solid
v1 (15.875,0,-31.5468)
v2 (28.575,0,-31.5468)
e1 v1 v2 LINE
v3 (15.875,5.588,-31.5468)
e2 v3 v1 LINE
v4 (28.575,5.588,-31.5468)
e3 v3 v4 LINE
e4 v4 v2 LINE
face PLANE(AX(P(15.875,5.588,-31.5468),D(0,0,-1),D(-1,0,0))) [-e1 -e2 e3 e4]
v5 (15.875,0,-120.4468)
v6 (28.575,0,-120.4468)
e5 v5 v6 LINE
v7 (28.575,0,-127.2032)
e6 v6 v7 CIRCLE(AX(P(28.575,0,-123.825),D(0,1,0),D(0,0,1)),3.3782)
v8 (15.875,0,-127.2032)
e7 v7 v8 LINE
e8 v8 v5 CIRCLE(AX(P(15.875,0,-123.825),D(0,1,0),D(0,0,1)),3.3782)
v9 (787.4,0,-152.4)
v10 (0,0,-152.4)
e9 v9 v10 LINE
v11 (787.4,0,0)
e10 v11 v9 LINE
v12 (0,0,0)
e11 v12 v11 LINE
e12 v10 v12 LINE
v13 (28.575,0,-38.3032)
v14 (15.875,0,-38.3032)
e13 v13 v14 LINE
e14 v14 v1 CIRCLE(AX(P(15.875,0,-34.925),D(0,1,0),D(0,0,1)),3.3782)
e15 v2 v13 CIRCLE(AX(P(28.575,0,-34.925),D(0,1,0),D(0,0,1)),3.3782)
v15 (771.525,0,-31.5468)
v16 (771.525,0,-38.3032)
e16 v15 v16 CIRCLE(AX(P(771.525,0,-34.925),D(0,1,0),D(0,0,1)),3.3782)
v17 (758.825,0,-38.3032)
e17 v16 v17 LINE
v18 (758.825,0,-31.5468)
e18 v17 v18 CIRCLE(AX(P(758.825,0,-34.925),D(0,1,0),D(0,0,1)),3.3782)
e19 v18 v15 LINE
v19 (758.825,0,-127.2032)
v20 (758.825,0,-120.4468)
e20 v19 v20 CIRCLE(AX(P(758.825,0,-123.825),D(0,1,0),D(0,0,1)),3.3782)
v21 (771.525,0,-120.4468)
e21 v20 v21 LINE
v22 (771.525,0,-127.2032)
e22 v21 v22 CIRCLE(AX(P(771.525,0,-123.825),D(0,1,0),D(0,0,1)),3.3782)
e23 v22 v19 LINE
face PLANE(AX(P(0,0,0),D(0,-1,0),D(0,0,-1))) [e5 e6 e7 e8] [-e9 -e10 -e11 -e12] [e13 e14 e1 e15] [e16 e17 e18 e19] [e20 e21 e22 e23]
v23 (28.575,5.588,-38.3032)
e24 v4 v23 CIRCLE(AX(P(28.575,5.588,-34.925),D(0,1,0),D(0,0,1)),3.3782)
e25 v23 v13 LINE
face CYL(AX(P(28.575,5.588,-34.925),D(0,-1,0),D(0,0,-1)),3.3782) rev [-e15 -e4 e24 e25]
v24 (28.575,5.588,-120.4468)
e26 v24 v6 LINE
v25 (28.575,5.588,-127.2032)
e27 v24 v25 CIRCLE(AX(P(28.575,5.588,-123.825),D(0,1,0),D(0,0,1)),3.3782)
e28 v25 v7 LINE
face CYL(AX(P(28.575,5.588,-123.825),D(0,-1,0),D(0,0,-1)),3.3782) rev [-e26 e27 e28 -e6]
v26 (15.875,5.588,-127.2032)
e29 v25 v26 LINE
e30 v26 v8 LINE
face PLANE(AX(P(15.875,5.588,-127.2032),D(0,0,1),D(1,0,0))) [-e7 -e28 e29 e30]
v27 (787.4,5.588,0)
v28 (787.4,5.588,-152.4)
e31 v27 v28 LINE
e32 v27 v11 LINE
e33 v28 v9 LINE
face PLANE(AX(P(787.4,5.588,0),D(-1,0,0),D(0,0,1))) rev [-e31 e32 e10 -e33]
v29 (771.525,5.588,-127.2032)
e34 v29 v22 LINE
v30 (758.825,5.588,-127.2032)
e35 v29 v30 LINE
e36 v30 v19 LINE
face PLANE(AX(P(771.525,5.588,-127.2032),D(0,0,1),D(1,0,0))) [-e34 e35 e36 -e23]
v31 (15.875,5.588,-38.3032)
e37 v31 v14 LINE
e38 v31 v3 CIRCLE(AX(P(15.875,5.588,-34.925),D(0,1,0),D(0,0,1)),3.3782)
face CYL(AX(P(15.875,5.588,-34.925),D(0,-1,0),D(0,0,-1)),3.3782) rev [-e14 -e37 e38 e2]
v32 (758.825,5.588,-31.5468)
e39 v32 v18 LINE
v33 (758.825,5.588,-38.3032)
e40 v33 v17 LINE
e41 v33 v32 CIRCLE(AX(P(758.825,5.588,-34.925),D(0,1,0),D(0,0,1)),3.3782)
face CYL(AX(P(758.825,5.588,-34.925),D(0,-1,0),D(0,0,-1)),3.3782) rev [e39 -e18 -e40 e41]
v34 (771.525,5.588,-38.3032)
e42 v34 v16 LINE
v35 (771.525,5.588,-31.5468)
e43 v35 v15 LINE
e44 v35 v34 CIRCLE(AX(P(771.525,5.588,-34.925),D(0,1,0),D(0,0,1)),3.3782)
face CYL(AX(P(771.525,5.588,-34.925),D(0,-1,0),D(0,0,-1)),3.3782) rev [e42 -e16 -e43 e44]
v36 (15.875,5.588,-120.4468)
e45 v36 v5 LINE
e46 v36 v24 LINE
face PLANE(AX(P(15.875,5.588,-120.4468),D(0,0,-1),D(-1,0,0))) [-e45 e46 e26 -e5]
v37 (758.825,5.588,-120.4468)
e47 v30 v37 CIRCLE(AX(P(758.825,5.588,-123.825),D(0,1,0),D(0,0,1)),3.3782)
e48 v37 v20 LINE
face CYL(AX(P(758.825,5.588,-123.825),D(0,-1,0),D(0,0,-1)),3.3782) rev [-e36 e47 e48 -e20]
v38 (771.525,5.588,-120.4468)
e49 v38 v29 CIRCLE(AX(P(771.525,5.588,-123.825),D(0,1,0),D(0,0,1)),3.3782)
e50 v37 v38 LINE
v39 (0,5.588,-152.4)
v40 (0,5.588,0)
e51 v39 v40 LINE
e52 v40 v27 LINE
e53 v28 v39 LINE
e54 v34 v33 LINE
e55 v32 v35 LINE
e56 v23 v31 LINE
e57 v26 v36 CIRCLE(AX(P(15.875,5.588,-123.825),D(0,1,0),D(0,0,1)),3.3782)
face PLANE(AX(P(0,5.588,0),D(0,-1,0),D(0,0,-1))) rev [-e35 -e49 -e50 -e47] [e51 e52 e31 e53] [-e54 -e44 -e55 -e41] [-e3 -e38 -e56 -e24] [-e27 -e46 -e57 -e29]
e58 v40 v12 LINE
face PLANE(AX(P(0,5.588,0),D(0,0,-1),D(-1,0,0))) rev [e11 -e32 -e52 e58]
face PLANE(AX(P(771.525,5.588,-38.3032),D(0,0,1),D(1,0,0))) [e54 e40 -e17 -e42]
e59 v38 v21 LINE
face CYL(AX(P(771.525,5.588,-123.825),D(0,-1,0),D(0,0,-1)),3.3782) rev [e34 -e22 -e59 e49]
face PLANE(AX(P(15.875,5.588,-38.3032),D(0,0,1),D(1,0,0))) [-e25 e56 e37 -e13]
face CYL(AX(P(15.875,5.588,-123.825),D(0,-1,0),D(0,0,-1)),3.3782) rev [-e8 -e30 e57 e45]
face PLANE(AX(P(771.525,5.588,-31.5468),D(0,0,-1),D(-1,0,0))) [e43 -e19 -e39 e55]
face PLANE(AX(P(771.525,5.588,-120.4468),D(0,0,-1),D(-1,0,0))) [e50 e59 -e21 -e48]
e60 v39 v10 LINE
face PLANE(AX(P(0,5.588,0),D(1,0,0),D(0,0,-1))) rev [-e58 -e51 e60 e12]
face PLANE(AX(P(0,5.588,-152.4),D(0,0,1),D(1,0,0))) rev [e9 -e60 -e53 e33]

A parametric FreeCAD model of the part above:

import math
import FreeCAD as App
import Part
import Sketcher
from FreeCAD import Vector
Q = App.Units.Quantity


def add_polygon(sketch, points):
    """Adds a closed chain of lines whose ends are joined by coincident constraints."""
    first, n = sketch.GeometryCount, len(points)
    for a, b in zip(points, points[1:] + points[:1]):
        sketch.addGeometry(Part.LineSegment(App.Vector(*a, 0), App.Vector(*b, 0)), False)
    for i in range(n):
        sketch.addConstraint(Sketcher.Constraint("Coincident", first + i, 2, first + (i + 1) % n, 1))

doc = App.newDocument("Part")
body = doc.addObject("PartDesign::Body", "Body")

sketch1 = doc.addObject("Sketcher::SketchObject", "Sketch")
body.addObject(sketch1)
sketch1.AttachmentSupport = (doc.XZ_Plane, [""])
sketch1.MapMode = "FlatFace"
add_polygon(sketch1, [(0, -152.4), (0, 0), (787.4, 0), (787.4, -152.4)])
sketch1.addGeometry(Part.ArcOfCircle(Part.Circle(Vector(15.9, -34.9, 0), Vector(0, 0, 1), 3.4), math.radians(90), math.radians(270)), False)
sketch1.addGeometry(Part.LineSegment(Vector(15.9, -38.3, 0), Vector(28.6, -38.3, 0)), False)
sketch1.addGeometry(Part.ArcOfCircle(Part.Circle(Vector(28.6, -34.9, 0), Vector(0, 0, 1), 3.4), math.radians(-90), math.radians(90)), False)
sketch1.addGeometry(Part.LineSegment(Vector(28.6, -31.5, 0), Vector(15.9, -31.5, 0)), False)
sketch1.addGeometry(Part.ArcOfCircle(Part.Circle(Vector(771.5, -34.9, 0), Vector(0, 0, 1), 3.4), math.radians(-90), math.radians(90)), False)
sketch1.addGeometry(Part.LineSegment(Vector(771.5, -31.5, 0), Vector(758.8, -31.5, 0)), False)
sketch1.addGeometry(Part.ArcOfCircle(Part.Circle(Vector(758.8, -34.9, 0), Vector(0, 0, 1), 3.4), math.radians(90), math.radians(270)), False)
sketch1.addGeometry(Part.LineSegment(Vector(758.8, -38.3, 0), Vector(771.5, -38.3, 0)), False)
sketch1.addGeometry(Part.ArcOfCircle(Part.Circle(Vector(15.9, -123.8, 0), Vector(0, 0, 1), 3.4), math.radians(90), math.radians(270)), False)
sketch1.addGeometry(Part.LineSegment(Vector(15.9, -127.2, 0), Vector(28.6, -127.2, 0)), False)
sketch1.addGeometry(Part.ArcOfCircle(Part.Circle(Vector(28.6, -123.8, 0), Vector(0, 0, 1), 3.4), math.radians(-90), math.radians(90)), False)
sketch1.addGeometry(Part.LineSegment(Vector(28.6, -120.4, 0), Vector(15.9, -120.4, 0)), False)
sketch1.addGeometry(Part.ArcOfCircle(Part.Circle(Vector(771.5, -123.8, 0), Vector(0, 0, 1), 3.4), math.radians(-90), math.radians(90)), False)
sketch1.addGeometry(Part.LineSegment(Vector(771.5, -120.4, 0), Vector(758.8, -120.4, 0)), False)
sketch1.addGeometry(Part.ArcOfCircle(Part.Circle(Vector(758.8, -123.8, 0), Vector(0, 0, 1), 3.4), math.radians(90), math.radians(270)), False)
sketch1.addGeometry(Part.LineSegment(Vector(758.8, -127.2, 0), Vector(771.5, -127.2, 0)), False)
sketch1.addConstraint(Sketcher.Constraint("Tangent", 4, 2, 5, 1))
sketch1.addConstraint(Sketcher.Constraint("Tangent", 5, 2, 6, 1))
sketch1.addConstraint(Sketcher.Constraint("Tangent", 6, 2, 7, 1))
sketch1.addConstraint(Sketcher.Constraint("Tangent", 7, 2, 4, 1))
sketch1.addConstraint(Sketcher.Constraint("Tangent", 8, 2, 9, 1))
sketch1.addConstraint(Sketcher.Constraint("Tangent", 9, 2, 10, 1))
sketch1.addConstraint(Sketcher.Constraint("Tangent", 10, 2, 11, 1))
sketch1.addConstraint(Sketcher.Constraint("Tangent", 11, 2, 8, 1))
sketch1.addConstraint(Sketcher.Constraint("Tangent", 12, 2, 13, 1))
sketch1.addConstraint(Sketcher.Constraint("Tangent", 13, 2, 14, 1))
sketch1.addConstraint(Sketcher.Constraint("Tangent", 14, 2, 15, 1))
sketch1.addConstraint(Sketcher.Constraint("Tangent", 15, 2, 12, 1))
sketch1.addConstraint(Sketcher.Constraint("Tangent", 16, 2, 17, 1))
sketch1.addConstraint(Sketcher.Constraint("Tangent", 17, 2, 18, 1))
sketch1.addConstraint(Sketcher.Constraint("Tangent", 18, 2, 19, 1))
sketch1.addConstraint(Sketcher.Constraint("Tangent", 19, 2, 16, 1))
sketch1.addConstraint(Sketcher.Constraint("Vertical", 0))
sketch1.addConstraint(Sketcher.Constraint("Horizontal", 1))
sketch1.addConstraint(Sketcher.Constraint("Vertical", 2))
sketch1.addConstraint(Sketcher.Constraint("Horizontal", 3))
sketch1.addConstraint(Sketcher.Constraint("Horizontal", 5))
sketch1.addConstraint(Sketcher.Constraint("Horizontal", 7))
sketch1.addConstraint(Sketcher.Constraint("Horizontal", 9))
sketch1.addConstraint(Sketcher.Constraint("Horizontal", 11))
sketch1.addConstraint(Sketcher.Constraint("Horizontal", 13))
sketch1.addConstraint(Sketcher.Constraint("Horizontal", 15))
sketch1.addConstraint(Sketcher.Constraint("Horizontal", 17))
sketch1.addConstraint(Sketcher.Constraint("Horizontal", 19))
sketch1.addConstraint(Sketcher.Constraint("Coincident", 0, 2, -1, 1))
sketch1.addConstraint(Sketcher.Constraint("Equal", 6, 8))
sketch1.addConstraint(Sketcher.Constraint("Equal", 10, 12))
sketch1.addConstraint(Sketcher.Constraint("Equal", 14, 16))
sketch1.addConstraint(Sketcher.Constraint("Horizontal", 6, 3, 8, 3))
sketch1.addConstraint(Sketcher.Constraint("Horizontal", 14, 3, 16, 3))
sketch1.addConstraint(Sketcher.Constraint("Vertical", 4, 3, 12, 3))
sketch1.addConstraint(Sketcher.Constraint("Vertical", 6, 3, 14, 3))
sketch1.addConstraint(Sketcher.Constraint("Vertical", 8, 3, 16, 3))
sketch1.addConstraint(Sketcher.Constraint("Vertical", 10, 3, 18, 3))
sketch1.addConstraint(Sketcher.Constraint("Equal", 7, 9))
sketch1.addConstraint(Sketcher.Constraint("DistanceX", 1, 1, 1, 2, Q("31 in")))
sketch1.addConstraint(Sketcher.Constraint("DistanceY", 0, 1, 0, 2, Q("6 in")))
sketch1.addConstraint(Sketcher.Constraint("DistanceX", 5, 1, 5, 2, Q("0.5 in")))
sketch1.addConstraint(Sketcher.Constraint("Radius", 4, Q("0.133 in")))
sketch1.addConstraint(Sketcher.Constraint("DistanceY", 12, 3, 4, 3, Q("3.5 in")))
sketch1.addConstraint(Sketcher.Constraint("DistanceX", 6, 3, 8, 3, Q("29.25 in")))
sketch1.addConstraint(Sketcher.Constraint("DistanceX", -1, 1, 4, 3, Q("0.625 in")))
sketch1.addConstraint(Sketcher.Constraint("DistanceY", 4, 3, -1, 1, Q("1.375 in")))
pad1 = doc.addObject("PartDesign::Pad", "Pad")
body.addObject(pad1)
pad1.Profile = sketch1
pad1.Length = Q("0.22 in")
pad1.Reversed = True

doc.recompute()
